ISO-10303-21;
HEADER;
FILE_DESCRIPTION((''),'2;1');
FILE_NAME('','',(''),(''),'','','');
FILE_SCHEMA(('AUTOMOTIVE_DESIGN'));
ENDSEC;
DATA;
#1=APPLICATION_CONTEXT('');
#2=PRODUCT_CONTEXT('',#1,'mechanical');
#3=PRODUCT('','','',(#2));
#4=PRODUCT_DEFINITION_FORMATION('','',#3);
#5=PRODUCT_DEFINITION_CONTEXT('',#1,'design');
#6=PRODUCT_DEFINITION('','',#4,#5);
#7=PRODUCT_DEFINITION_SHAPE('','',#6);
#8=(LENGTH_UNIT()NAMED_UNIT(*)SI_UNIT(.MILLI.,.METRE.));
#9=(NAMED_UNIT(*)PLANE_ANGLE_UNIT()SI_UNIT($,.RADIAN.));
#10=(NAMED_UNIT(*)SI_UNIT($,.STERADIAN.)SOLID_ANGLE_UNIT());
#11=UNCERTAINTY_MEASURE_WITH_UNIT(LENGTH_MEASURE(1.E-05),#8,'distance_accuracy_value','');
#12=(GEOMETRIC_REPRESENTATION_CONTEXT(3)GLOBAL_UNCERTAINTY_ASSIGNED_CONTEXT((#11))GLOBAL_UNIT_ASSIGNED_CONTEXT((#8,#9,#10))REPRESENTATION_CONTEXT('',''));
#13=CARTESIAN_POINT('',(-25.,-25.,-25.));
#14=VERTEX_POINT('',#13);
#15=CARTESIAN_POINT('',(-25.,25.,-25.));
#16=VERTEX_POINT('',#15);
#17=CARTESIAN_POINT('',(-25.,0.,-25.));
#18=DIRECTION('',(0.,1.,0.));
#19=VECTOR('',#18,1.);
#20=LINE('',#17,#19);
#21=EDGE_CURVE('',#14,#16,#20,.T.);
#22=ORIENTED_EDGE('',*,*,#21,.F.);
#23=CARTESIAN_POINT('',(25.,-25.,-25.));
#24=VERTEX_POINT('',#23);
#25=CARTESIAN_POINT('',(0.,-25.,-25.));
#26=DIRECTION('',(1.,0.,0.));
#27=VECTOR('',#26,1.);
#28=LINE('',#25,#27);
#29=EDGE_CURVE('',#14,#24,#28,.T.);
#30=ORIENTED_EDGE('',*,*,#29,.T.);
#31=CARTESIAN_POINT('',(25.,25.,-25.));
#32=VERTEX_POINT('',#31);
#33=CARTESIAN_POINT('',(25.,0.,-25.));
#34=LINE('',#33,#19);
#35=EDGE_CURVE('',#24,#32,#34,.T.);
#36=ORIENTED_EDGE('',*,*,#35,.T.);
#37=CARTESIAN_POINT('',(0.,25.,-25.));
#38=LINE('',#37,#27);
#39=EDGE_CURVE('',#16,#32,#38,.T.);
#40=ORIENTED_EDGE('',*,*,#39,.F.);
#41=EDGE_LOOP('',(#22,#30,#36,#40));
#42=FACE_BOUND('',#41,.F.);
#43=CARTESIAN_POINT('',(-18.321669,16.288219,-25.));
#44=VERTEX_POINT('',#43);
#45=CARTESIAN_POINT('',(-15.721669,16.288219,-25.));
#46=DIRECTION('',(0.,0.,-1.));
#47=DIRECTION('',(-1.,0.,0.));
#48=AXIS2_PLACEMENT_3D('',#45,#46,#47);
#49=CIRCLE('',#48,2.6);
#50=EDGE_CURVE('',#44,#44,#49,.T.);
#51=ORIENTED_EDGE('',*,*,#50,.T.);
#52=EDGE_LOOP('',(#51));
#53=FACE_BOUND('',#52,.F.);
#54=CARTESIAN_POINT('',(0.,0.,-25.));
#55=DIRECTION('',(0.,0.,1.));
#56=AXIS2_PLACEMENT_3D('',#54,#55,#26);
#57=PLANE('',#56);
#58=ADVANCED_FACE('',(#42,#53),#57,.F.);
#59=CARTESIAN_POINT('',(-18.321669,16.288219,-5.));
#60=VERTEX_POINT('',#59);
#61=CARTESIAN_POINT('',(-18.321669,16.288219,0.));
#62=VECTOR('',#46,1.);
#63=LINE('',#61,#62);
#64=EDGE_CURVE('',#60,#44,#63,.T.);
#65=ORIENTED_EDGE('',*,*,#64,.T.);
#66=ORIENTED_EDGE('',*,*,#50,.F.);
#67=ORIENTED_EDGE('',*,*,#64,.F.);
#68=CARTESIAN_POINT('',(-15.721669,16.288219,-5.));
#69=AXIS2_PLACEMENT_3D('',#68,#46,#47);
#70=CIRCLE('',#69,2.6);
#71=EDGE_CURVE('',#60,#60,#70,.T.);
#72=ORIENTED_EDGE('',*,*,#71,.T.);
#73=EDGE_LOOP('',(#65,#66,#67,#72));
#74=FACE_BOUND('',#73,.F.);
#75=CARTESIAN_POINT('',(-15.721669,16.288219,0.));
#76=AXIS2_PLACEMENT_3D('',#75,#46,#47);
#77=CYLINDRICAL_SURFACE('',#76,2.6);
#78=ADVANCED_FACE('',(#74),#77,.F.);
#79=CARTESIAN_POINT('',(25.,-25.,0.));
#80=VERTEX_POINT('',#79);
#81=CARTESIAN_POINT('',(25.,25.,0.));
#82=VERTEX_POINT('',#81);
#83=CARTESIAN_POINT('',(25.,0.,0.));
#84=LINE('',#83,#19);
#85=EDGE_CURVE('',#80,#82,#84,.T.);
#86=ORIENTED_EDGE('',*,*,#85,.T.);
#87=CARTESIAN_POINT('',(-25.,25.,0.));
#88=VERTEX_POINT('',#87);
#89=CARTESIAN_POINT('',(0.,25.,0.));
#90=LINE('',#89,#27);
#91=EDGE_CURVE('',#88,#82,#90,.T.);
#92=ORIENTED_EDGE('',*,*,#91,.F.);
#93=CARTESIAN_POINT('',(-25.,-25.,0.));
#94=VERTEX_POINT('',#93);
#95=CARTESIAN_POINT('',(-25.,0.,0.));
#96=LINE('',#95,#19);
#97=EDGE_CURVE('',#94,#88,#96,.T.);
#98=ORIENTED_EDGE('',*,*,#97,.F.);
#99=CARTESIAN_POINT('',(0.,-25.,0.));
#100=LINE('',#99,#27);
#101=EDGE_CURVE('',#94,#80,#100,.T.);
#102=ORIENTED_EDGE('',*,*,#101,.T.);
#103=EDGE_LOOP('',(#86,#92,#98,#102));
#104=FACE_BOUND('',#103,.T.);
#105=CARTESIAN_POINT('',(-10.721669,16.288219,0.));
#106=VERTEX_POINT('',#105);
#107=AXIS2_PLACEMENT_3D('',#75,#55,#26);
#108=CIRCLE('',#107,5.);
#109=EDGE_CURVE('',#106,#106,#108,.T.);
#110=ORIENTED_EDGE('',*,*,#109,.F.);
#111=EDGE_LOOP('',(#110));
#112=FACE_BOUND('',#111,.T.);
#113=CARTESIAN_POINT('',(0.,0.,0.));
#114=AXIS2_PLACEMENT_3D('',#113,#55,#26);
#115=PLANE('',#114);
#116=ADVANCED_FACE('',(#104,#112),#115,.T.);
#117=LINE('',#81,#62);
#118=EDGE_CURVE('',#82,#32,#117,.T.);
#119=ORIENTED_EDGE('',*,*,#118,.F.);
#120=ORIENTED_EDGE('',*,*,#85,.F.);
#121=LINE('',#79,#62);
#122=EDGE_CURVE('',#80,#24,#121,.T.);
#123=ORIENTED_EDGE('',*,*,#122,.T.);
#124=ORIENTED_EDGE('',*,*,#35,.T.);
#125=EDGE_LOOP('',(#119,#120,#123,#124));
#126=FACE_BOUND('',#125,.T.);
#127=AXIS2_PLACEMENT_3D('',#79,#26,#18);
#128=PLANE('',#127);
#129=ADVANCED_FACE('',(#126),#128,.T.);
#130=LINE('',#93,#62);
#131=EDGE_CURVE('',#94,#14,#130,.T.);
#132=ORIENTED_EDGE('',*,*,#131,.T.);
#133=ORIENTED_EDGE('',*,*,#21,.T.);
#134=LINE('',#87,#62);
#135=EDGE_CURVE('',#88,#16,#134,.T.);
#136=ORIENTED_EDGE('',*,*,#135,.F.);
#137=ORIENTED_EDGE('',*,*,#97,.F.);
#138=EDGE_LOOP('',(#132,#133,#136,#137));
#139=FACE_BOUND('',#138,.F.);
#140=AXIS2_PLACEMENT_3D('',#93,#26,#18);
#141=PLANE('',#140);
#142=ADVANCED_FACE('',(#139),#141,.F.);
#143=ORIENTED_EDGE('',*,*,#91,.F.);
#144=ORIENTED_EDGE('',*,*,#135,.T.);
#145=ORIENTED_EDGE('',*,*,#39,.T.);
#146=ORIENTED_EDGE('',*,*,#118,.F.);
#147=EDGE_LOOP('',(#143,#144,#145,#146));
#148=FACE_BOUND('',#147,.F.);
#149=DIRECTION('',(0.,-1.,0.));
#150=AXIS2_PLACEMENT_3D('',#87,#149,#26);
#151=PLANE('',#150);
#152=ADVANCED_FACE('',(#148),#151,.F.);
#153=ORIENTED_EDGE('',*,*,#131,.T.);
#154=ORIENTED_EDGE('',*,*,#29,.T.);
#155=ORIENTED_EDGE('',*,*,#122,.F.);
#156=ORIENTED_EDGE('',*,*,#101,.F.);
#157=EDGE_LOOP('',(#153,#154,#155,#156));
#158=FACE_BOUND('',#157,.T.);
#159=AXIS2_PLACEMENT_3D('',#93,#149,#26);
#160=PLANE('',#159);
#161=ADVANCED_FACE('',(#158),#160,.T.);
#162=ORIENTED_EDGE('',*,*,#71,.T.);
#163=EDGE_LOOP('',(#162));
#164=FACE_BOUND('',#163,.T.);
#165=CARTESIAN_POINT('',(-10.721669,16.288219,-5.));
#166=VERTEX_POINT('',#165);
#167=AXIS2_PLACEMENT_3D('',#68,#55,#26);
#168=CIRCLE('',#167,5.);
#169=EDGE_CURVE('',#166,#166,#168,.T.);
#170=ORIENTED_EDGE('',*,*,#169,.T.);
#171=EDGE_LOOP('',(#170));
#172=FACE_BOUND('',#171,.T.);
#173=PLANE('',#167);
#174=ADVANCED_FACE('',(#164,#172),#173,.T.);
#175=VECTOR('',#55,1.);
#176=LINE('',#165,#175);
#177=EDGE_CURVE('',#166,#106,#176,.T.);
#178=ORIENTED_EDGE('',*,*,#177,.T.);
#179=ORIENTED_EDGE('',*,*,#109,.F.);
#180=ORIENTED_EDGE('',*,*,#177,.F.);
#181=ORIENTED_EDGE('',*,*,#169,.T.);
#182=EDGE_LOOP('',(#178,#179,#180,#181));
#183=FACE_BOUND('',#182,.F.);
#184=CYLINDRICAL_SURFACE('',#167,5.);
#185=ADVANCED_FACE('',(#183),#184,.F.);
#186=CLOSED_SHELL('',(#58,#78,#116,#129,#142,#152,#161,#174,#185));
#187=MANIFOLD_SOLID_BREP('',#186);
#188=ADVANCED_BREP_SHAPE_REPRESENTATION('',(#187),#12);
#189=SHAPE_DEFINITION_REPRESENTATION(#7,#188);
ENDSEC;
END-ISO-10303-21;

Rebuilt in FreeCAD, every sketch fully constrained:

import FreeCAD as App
import Part
import Sketcher
from FreeCAD import Vector
Q = App.Units.Quantity


def add_polygon(sketch, points):
    """Adds a closed chain of lines whose ends are joined by coincident constraints."""
    first, n = sketch.GeometryCount, len(points)
    for a, b in zip(points, points[1:] + points[:1]):
        sketch.addGeometry(Part.LineSegment(App.Vector(*a, 0), App.Vector(*b, 0)), False)
    for i in range(n):
        sketch.addConstraint(Sketcher.Constraint("Coincident", first + i, 2, first + (i + 1) % n, 1))

doc = App.newDocument("Part")
body = doc.addObject("PartDesign::Body", "Body")

sketch1 = body.newObject("Sketcher::SketchObject", "Sketch")
sketch1.AttachmentSupport = (doc.getObject("XY_Plane"), [""])
sketch1.MapMode = "FlatFace"
add_polygon(sketch1, [(-25, 25), (-25, -25), (25, -25), (25, 25)])
sketch1.addConstraint(Sketcher.Constraint("Vertical", 0))
sketch1.addConstraint(Sketcher.Constraint("Horizontal", 1))
sketch1.addConstraint(Sketcher.Constraint("Vertical", 2))
sketch1.addConstraint(Sketcher.Constraint("Horizontal", 3))
sketch1.addConstraint(Sketcher.Constraint("Symmetric", 0, 2, 2, 2, -1, 1))
sketch1.addConstraint(Sketcher.Constraint("Equal", 3, 0))
sketch1.addConstraint(Sketcher.Constraint("DistanceX", 1, 1, 1, 2, Q("50 mm")))
pad1 = body.newObject("PartDesign::Pad", "Pad")
pad1.Profile = sketch1
pad1.Length = 25
pad1.Reversed = True

sketch2 = body.newObject("Sketcher::SketchObject", "Sketch001")
sketch2.AttachmentSupport = (doc.getObject("XY_Plane"), [""])
sketch2.MapMode = "FlatFace"
sketch2.addGeometry(Part.Circle(Vector(-15.7, 16.3, 0), Vector(0, 0, 1), 2.6), False)
sketch2.addConstraint(Sketcher.Constraint("Diameter", 0, Q("5.2 mm")))
sketch2.addConstraint(Sketcher.Constraint("DistanceX", 0, 3, -1, 1, Q("15.721669 mm")))
sketch2.addConstraint(Sketcher.Constraint("DistanceY", -1, 1, 0, 3, Q("16.288219 mm")))
doc.recompute()
hole = body.newObject("PartDesign::Hole", "Hole")
hole.Profile = sketch2
hole.ThreadType = "None"
hole.Diameter = 5.2
hole.DepthType = "ThroughAll"
hole.HoleCutType = "Counterbore"
hole.HoleCutDiameter = 10
hole.HoleCutDepth = 5

doc.recompute()
